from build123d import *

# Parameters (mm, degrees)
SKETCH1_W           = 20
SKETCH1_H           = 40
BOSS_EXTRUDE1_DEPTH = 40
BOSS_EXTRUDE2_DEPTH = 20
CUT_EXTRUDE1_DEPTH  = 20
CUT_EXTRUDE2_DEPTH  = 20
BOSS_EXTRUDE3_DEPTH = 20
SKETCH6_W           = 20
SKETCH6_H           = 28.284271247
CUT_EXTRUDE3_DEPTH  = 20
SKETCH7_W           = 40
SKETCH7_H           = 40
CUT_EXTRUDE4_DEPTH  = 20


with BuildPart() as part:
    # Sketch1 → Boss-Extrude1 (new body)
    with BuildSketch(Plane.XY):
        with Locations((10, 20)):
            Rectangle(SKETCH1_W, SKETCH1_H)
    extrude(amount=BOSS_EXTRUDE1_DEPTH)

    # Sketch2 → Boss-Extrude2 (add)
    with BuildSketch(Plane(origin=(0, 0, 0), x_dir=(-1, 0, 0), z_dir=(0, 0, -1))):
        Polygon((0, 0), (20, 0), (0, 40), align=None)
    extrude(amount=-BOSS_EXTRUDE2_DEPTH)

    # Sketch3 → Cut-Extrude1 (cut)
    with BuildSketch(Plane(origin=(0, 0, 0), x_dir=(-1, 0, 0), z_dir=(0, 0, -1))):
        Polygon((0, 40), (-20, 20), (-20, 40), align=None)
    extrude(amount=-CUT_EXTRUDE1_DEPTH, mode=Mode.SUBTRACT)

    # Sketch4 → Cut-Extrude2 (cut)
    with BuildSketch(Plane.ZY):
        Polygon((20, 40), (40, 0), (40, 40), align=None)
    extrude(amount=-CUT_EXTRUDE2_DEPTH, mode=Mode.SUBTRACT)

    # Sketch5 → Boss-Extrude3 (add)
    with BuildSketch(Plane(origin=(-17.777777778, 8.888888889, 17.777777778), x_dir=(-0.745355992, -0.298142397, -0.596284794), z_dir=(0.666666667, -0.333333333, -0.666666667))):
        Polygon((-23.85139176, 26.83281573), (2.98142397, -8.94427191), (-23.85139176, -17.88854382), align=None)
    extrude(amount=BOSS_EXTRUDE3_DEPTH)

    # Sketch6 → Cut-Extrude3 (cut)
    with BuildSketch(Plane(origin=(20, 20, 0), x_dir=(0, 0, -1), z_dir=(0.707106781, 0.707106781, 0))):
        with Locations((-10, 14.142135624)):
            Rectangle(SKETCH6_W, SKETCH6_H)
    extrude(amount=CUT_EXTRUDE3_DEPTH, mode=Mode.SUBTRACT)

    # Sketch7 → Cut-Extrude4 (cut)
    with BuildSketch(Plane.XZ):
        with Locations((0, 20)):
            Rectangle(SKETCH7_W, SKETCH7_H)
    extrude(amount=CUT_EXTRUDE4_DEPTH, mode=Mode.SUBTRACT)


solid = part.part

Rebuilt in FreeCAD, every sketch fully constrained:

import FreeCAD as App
import Part
import Sketcher

V = App.Vector
Q = App.Units.Quantity


def add_polygon(sketch, points):
    """Adds a closed chain of lines whose ends are joined by coincident constraints."""
    first, n = sketch.GeometryCount, len(points)
    for a, b in zip(points, points[1:] + points[:1]):
        sketch.addGeometry(Part.LineSegment(App.Vector(*a, 0), App.Vector(*b, 0)), False)
    for i in range(n):
        sketch.addConstraint(Sketcher.Constraint("Coincident", first + i, 2, first + (i + 1) % n, 1))

doc = App.newDocument("Part")
body = doc.addObject("PartDesign::Body", "Body")

# Sketch on XY plane
sketch1 = doc.addObject("Sketcher::SketchObject", "Sketch")
body.addObject(sketch1)
sketch1.AttachmentSupport = (doc.XY_Plane, [""])
sketch1.MapMode = "FlatFace"
add_polygon(sketch1, [(0, 40), (0, 0), (20, 0), (20, 40)])  # lines 0-3
sketch1.addConstraint([
    Sketcher.Constraint("Vertical", 0),
    Sketcher.Constraint("Horizontal", 1),
    Sketcher.Constraint("Vertical", 2),
    Sketcher.Constraint("Horizontal", 3),
    Sketcher.Constraint("Coincident", 0, 2, -1, 1),
    Sketcher.Constraint("DistanceX", 1, 1, 1, 2, Q("20 mm")),
    Sketcher.Constraint("DistanceY", 0, 2, 0, 1, Q("40 mm")),
])
pad1 = doc.addObject("PartDesign::Pad", "Pad")
body.addObject(pad1)
pad1.Profile = sketch1
pad1.Length = 40

# Sketch on XY plane
sketch2 = doc.addObject("Sketcher::SketchObject", "Sketch001")
body.addObject(sketch2)
sketch2.AttachmentSupport = (doc.XY_Plane, [""])
sketch2.MapMode = "FlatFace"
add_polygon(sketch2, [(0, 0), (-20, 0), (0, 40)])  # lines 0-2
sketch2.addConstraint([
    Sketcher.Constraint("Horizontal", 0),
    Sketcher.Constraint("Vertical", 2),
    Sketcher.Constraint("Coincident", 2, 2, -1, 1),
    Sketcher.Constraint("DistanceX", 0, 2, 0, 1, Q("20 mm")),
    Sketcher.Constraint("DistanceY", 2, 2, 2, 1, Q("40 mm")),
])
pad2 = doc.addObject("PartDesign::Pad", "Pad001")
body.addObject(pad2)
pad2.Profile = sketch2
pad2.Length = 20

# Sketch on XY plane
sketch3 = doc.addObject("Sketcher::SketchObject", "Sketch002")
body.addObject(sketch3)
sketch3.AttachmentSupport = (doc.XY_Plane, [""])
sketch3.MapMode = "FlatFace"
add_polygon(sketch3, [(20, 20), (0, 40), (20, 40)])  # lines 0-2
sketch3.addConstraint([
    Sketcher.Constraint("Horizontal", 1),
    Sketcher.Constraint("Vertical", 2),
    Sketcher.Constraint("PointOnObject", 0, 2, -2),
    Sketcher.Constraint("Equal", 1, 2),
    Sketcher.Constraint("DistanceX", 1, 1, 1, 2, Q("20 mm")),
    Sketcher.Constraint("DistanceY", -1, 1, 0, 2, Q("40 mm")),
])
pocket1 = doc.addObject("PartDesign::Pocket", "Pocket")
body.addObject(pocket1)
pocket1.Profile = sketch3
pocket1.Length = 20
pocket1.Reversed = True

# Sketch on YZ plane
sketch4 = doc.addObject("Sketcher::SketchObject", "Sketch003")
body.addObject(sketch4)
sketch4.AttachmentSupport = (doc.YZ_Plane, [""])
sketch4.MapMode = "FlatFace"
add_polygon(sketch4, [(40, 20), (0, 40), (40, 40)])  # lines 0-2
sketch4.addConstraint([
    Sketcher.Constraint("Horizontal", 1),
    Sketcher.Constraint("Vertical", 2),
    Sketcher.Constraint("PointOnObject", 0, 2, -2),
    Sketcher.Constraint("DistanceX", 1, 1, 1, 2, Q("40 mm")),
    Sketcher.Constraint("DistanceY", 2, 2, 2, 1, Q("20 mm")),
    Sketcher.Constraint("DistanceY", -1, 1, 0, 2, Q("40 mm")),
])
pocket2 = doc.addObject("PartDesign::Pocket", "Pocket001")
body.addObject(pocket2)
pocket2.Profile = sketch4
pocket2.Length = 20
pocket2.Reversed = True

# Sketch on an angled plane
sketch5 = doc.addObject("Sketcher::SketchObject", "Sketch004")
body.addObject(sketch5)
sketch5.Placement = App.Placement(V(-17.777778, 8.888889, 17.777778), App.Rotation(V(-0.745355992, -0.298142397, -0.596284794), V(0, 0.894427191, -0.447213595), V(0.666666667, -0.333333333, -0.666666667), "ZXY"))
add_polygon(sketch5, [(2.981424, -8.944272), (-23.851392, 26.832816), (-23.851392, -17.888544)])  # lines 0-2
sketch5.addConstraint([
    Sketcher.Constraint("Vertical", 1),
    Sketcher.Constraint("DistanceY", 1, 2, 1, 1, Q("44.72136 mm")),
    Sketcher.Constraint("Distance", 0, Q("44.72136 mm")),
    Sketcher.Constraint("Distance", 2, Q("28.284271 mm")),
    Sketcher.Constraint("DistanceX", 0, 2, -1, 1, Q("23.851392 mm")),
    Sketcher.Constraint("DistanceY", 2, 2, -1, 1, Q("8.944272 mm")),
])
pad3 = doc.addObject("PartDesign::Pad", "Pad002")
body.addObject(pad3)
pad3.Profile = sketch5
pad3.Length = 20

# Sketch on an angled plane
sketch6 = doc.addObject("Sketcher::SketchObject", "Sketch005")
body.addObject(sketch6)
sketch6.Placement = App.Placement(V(20, 20, 0), App.Rotation(V(0, 0, -1), V(-0.707106781, 0.707106781, 0), V(0.707106781, 0.707106781, 0), "ZXY"))
add_polygon(sketch6, [(-20, 28.284271), (-20, 0), (0, 0), (0, 28.284271)])  # lines 0-3
sketch6.addConstraint([
    Sketcher.Constraint("Vertical", 0),
    Sketcher.Constraint("Horizontal", 1),
    Sketcher.Constraint("Vertical", 2),
    Sketcher.Constraint("Horizontal", 3),
    Sketcher.Constraint("Coincident", 1, 2, -1, 1),
    Sketcher.Constraint("DistanceX", 1, 1, 1, 2, Q("20 mm")),
    Sketcher.Constraint("DistanceY", 0, 2, 0, 1, Q("28.284271 mm")),
])
pocket3 = doc.addObject("PartDesign::Pocket", "Pocket002")
body.addObject(pocket3)
pocket3.Profile = sketch6
pocket3.Length = 20
pocket3.Reversed = True

# Sketch on XZ plane
sketch7 = doc.addObject("Sketcher::SketchObject", "Sketch006")
body.addObject(sketch7)
sketch7.AttachmentSupport = (doc.XZ_Plane, [""])
sketch7.MapMode = "FlatFace"
add_polygon(sketch7, [(-20, 40), (-20, 0), (20, 0), (20, 40)])  # lines 0-3
sketch7.addConstraint([
    Sketcher.Constraint("Vertical", 0),
    Sketcher.Constraint("Horizontal", 1),
    Sketcher.Constraint("Vertical", 2),
    Sketcher.Constraint("Horizontal", 3),
    Sketcher.Constraint("Symmetric", 0, 2, 1, 2, -1, 1),
    Sketcher.Constraint("Equal", 3, 0),
    Sketcher.Constraint("DistanceX", 1, 1, 1, 2, Q("40 mm")),
])
pocket4 = doc.addObject("PartDesign::Pocket", "Pocket003")
body.addObject(pocket4)
pocket4.Profile = sketch7
pocket4.Length = 20
pocket4.Reversed = True

doc.recompute()
